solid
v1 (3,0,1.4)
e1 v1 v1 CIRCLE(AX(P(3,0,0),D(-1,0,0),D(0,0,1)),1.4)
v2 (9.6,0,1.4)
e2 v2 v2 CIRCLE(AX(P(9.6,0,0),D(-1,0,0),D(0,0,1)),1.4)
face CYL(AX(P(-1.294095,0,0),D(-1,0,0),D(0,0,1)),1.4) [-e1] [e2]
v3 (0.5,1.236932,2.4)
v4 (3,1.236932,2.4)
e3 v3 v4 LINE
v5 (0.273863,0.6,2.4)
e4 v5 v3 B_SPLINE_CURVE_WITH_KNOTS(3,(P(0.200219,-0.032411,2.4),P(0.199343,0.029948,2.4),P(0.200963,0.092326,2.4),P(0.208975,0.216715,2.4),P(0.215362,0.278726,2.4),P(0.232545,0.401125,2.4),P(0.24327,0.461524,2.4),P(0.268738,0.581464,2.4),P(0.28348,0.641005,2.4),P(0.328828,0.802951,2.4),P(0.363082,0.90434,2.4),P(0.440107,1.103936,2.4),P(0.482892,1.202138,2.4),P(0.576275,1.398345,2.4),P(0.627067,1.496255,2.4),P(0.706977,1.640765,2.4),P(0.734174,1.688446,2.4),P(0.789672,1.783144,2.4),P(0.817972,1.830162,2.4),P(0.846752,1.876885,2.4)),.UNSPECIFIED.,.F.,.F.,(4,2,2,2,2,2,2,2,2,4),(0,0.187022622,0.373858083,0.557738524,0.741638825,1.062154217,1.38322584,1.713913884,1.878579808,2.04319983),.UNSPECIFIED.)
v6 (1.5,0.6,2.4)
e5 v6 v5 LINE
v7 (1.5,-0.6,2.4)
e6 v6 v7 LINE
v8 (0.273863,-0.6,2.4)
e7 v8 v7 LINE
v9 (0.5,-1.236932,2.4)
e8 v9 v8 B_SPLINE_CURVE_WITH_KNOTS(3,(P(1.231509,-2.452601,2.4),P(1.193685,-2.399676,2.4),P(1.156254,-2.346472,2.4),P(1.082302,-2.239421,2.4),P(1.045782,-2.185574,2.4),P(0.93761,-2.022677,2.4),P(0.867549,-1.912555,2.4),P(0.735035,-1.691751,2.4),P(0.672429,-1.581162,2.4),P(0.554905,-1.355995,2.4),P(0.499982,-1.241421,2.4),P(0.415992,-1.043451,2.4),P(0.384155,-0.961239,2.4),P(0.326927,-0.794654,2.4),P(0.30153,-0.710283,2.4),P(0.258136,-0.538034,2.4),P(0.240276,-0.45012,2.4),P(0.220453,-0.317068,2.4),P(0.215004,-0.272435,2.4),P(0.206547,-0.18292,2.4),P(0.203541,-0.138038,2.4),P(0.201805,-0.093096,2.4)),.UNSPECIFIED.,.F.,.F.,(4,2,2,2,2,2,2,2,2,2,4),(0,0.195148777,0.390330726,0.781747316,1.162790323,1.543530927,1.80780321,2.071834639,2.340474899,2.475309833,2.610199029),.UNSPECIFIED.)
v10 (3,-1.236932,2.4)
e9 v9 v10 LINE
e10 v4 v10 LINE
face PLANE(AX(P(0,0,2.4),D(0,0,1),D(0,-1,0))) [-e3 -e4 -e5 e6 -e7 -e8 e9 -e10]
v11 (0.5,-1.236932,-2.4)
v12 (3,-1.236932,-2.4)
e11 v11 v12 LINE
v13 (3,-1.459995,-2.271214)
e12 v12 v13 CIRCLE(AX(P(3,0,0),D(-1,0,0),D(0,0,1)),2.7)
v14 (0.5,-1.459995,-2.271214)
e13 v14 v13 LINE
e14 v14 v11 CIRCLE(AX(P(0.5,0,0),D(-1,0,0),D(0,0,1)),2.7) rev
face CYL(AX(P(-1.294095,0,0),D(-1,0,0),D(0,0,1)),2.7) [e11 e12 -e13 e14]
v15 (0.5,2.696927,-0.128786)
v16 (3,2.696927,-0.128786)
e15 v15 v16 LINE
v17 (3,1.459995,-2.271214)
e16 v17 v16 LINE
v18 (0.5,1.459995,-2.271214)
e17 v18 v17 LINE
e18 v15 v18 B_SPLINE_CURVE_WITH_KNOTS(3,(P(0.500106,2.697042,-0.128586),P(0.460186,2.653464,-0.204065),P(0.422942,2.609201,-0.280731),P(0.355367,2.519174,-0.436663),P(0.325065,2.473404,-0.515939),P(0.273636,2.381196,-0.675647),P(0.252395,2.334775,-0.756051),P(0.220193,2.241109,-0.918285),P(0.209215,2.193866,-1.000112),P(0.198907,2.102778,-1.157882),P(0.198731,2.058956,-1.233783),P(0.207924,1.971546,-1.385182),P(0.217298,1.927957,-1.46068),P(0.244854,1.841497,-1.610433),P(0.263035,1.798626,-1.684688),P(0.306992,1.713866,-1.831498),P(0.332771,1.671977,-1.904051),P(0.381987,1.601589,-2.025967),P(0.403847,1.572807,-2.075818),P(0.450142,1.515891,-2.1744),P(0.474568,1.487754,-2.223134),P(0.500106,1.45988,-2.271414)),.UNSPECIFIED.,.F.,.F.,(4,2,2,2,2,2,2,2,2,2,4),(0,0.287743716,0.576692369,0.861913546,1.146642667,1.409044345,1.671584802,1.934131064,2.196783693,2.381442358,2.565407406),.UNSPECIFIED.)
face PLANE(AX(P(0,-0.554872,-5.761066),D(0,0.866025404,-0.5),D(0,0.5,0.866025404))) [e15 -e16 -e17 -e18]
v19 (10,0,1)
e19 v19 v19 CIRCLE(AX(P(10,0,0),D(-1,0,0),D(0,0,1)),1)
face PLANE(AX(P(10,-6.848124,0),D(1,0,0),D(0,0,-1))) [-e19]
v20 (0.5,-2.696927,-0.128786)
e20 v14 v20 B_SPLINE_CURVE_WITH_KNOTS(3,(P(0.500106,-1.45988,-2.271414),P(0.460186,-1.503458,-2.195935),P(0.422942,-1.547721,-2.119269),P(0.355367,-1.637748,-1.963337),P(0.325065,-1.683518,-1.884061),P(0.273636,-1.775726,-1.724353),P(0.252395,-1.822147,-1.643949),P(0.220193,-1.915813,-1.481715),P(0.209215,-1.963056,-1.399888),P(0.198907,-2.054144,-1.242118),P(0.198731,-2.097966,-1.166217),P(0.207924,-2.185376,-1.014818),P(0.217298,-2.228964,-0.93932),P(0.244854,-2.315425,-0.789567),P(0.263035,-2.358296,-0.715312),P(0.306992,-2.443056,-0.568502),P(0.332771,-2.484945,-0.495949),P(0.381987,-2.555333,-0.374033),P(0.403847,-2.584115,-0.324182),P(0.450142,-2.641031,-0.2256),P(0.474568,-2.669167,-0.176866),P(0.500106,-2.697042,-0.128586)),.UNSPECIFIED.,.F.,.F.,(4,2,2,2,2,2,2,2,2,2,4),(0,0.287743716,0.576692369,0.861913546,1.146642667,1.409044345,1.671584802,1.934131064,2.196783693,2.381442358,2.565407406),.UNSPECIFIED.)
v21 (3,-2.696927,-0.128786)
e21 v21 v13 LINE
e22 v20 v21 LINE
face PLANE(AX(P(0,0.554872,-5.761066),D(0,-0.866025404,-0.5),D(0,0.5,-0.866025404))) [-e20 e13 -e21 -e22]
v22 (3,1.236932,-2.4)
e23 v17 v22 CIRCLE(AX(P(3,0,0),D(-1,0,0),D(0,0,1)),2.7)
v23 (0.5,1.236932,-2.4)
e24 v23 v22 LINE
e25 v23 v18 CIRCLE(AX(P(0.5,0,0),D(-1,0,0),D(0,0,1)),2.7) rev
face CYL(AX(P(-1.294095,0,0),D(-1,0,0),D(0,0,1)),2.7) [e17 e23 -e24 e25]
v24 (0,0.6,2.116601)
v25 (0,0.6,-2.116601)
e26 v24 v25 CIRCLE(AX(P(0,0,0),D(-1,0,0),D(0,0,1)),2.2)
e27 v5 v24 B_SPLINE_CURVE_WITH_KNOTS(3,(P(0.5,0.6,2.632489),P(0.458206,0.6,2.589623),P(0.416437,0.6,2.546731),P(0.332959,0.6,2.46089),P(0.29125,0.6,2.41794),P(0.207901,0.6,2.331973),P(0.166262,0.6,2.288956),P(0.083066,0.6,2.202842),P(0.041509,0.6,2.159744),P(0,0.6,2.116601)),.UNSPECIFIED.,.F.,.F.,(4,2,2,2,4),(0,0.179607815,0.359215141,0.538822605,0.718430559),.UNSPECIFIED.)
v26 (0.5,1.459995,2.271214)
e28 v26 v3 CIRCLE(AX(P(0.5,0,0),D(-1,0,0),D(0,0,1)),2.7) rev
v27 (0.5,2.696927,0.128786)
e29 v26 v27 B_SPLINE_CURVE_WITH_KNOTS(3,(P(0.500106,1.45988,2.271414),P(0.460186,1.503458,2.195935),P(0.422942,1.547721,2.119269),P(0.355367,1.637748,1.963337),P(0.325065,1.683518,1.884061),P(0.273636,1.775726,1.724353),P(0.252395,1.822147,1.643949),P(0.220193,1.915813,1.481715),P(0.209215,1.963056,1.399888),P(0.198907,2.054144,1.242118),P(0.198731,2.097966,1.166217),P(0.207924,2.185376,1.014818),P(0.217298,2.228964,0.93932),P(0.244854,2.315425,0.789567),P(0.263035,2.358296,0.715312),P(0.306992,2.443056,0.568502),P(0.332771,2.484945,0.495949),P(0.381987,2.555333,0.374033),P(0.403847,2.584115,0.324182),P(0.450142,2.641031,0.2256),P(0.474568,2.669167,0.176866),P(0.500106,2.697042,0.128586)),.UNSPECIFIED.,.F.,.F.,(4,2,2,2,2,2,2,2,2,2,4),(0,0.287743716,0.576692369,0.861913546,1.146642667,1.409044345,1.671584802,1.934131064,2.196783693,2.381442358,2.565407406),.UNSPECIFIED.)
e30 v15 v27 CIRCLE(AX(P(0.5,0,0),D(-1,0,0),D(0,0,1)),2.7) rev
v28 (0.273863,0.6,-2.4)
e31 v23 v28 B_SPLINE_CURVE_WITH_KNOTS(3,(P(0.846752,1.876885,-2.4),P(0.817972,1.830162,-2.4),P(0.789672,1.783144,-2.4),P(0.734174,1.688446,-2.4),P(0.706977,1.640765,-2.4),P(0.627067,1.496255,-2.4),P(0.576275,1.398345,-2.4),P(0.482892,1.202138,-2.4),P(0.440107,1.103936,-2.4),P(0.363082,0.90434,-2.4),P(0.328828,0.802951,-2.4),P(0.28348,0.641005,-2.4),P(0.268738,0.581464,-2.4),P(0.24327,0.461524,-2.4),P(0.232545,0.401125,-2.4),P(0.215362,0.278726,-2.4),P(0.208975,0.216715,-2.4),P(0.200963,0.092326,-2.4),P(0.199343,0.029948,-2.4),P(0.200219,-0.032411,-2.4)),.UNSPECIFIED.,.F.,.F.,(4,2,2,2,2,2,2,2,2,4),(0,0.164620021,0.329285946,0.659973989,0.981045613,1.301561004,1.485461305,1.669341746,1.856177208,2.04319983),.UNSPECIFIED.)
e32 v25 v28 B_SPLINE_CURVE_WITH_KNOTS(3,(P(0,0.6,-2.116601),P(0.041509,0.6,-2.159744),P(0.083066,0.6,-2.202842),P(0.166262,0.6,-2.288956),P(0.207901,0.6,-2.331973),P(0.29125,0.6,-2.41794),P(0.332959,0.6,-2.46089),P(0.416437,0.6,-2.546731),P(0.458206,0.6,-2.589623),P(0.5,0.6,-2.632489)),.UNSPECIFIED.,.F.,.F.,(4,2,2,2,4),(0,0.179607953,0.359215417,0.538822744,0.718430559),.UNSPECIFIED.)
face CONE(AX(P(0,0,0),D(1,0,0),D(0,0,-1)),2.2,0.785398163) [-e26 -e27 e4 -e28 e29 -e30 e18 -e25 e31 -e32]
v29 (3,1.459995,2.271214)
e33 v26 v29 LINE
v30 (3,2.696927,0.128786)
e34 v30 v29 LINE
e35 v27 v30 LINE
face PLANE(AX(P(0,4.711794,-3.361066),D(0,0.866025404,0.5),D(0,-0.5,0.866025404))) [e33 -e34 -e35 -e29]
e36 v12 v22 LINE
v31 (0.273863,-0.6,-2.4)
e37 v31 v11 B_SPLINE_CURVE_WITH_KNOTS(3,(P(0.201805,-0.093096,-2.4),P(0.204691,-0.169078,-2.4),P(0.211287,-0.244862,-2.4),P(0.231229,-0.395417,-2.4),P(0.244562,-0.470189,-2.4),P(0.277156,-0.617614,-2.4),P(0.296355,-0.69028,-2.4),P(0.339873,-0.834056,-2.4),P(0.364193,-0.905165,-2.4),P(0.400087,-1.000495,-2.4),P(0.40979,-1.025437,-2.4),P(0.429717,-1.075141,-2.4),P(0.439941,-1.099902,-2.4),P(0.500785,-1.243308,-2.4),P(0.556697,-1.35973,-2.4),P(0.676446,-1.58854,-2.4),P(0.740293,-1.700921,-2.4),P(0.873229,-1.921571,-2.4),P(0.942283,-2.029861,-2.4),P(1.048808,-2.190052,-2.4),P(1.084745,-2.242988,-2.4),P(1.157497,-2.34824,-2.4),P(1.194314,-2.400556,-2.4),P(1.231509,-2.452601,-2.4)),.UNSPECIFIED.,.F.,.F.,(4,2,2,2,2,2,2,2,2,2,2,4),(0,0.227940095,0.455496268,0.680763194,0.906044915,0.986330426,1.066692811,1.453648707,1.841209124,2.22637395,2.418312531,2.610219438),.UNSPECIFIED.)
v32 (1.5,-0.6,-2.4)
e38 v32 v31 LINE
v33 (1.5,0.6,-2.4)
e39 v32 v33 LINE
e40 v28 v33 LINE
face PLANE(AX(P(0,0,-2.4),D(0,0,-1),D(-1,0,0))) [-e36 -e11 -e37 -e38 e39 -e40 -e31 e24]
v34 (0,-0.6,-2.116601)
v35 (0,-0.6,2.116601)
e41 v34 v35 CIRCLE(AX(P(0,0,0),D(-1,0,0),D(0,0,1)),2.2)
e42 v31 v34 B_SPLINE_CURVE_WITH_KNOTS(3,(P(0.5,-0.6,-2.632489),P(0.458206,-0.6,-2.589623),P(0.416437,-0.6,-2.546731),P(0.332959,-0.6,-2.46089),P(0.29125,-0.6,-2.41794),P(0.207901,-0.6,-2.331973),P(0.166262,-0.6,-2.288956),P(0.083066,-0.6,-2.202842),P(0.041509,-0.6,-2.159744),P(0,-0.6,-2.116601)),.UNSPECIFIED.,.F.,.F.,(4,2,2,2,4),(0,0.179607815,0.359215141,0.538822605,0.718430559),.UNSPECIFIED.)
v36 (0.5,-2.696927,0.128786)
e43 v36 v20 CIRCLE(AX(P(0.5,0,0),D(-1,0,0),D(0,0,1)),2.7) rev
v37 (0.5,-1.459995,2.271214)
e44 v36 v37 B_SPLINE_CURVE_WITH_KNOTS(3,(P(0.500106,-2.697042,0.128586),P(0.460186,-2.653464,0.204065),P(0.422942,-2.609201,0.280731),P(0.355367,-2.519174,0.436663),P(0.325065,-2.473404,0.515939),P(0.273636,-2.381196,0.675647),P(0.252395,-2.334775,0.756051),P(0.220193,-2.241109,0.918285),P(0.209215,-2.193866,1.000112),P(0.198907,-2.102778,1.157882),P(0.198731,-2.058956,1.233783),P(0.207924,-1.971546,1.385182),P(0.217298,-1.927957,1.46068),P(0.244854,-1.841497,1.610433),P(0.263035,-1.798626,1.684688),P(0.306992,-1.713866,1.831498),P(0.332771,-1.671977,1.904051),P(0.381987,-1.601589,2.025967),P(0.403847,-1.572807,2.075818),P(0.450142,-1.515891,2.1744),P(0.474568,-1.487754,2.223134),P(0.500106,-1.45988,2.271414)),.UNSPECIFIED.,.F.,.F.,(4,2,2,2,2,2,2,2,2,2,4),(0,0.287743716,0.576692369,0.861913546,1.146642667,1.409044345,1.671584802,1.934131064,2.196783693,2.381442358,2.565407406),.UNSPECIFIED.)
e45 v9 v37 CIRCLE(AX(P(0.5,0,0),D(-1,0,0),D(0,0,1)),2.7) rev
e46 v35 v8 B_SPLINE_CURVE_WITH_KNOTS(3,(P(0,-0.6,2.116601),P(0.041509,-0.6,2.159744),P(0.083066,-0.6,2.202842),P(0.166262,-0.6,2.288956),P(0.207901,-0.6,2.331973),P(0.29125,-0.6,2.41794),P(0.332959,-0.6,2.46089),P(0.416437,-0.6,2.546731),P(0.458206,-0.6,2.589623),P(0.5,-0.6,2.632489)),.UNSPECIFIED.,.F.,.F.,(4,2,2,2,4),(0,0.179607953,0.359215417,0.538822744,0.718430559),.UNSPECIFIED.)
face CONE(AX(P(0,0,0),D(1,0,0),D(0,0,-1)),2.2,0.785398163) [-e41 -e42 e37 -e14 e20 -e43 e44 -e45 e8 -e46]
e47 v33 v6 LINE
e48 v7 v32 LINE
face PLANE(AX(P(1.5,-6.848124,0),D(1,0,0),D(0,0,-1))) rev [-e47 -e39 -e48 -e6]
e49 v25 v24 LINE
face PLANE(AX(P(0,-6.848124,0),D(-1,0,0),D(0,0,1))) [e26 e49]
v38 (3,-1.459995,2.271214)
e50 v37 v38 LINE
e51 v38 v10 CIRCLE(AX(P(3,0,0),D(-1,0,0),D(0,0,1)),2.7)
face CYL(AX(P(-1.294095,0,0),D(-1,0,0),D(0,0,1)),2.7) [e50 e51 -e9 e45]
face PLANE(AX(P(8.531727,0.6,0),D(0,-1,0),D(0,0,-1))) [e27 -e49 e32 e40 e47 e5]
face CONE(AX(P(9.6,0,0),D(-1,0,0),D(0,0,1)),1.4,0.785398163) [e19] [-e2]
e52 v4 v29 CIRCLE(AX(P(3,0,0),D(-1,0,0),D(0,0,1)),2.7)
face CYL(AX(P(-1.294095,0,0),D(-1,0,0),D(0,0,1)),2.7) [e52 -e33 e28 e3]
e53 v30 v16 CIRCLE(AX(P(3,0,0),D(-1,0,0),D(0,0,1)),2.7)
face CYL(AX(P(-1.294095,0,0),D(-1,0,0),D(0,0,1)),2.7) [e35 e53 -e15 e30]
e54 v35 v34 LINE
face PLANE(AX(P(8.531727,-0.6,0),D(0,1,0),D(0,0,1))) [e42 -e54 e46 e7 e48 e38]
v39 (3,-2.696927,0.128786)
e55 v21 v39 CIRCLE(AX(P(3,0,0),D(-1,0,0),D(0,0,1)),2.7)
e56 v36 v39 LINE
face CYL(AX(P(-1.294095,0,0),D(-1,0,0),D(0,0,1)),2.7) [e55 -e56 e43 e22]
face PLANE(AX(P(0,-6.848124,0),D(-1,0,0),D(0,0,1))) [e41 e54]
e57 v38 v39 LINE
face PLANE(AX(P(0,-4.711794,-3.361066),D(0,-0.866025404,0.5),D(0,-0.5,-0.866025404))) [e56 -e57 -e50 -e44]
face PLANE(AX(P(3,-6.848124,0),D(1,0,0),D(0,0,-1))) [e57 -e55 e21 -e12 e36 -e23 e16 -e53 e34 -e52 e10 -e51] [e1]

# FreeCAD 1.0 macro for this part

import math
import FreeCAD as App
import Part
import Sketcher
from FreeCAD import Vector
Q = App.Units.Quantity


def edges_at(feature, points):
    """Names of the edges that pass closest to the given points."""
    edges = feature.Shape.Edges
    near = lambda p: min(range(len(edges)), key=lambda i: edges[i].distToShape(Part.Vertex(*p))[0])
    return sorted({f"Edge{near(p) + 1}" for p in points})


def add_polygon(sketch, points):
    """Adds a closed chain of lines whose ends are joined by coincident constraints."""
    first, n = sketch.GeometryCount, len(points)
    for a, b in zip(points, points[1:] + points[:1]):
        sketch.addGeometry(Part.LineSegment(App.Vector(*a, 0), App.Vector(*b, 0)), False)
    for i in range(n):
        sketch.addConstraint(Sketcher.Constraint("Coincident", first + i, 2, first + (i + 1) % n, 1))

doc = App.newDocument("Part")
body = doc.addObject("PartDesign::Body", "Body")

sketch1 = body.newObject("Sketcher::SketchObject", "Sketch")
sketch1.AttachmentSupport = (doc.getObject("XY_Plane"), [""])
sketch1.MapMode = "FlatFace"
add_polygon(sketch1, [(0, 2.7), (0, 0), (10, 0), (10, 1), (9.6, 1.4), (3, 1.4), (3, 2.7)])
sketch1.addConstraint([
    Sketcher.Constraint("Vertical", 0),
    Sketcher.Constraint("Horizontal", 1),
    Sketcher.Constraint("Vertical", 2),
    Sketcher.Constraint("Horizontal", 4),
    Sketcher.Constraint("Vertical", 5),
    Sketcher.Constraint("Horizontal", 6),
    Sketcher.Constraint("Coincident", 0, 2, -1, 1),
    Sketcher.Constraint("DistanceX", 1, 1, 1, 2, 10.0),
    Sketcher.Constraint("DistanceX", 6, 2, 6, 1, 3.0),
    Sketcher.Constraint("DistanceY", 2, 1, 2, 2, 1.0),
    Sketcher.Constraint("Angle", 3, Q("135 deg")),
    Sketcher.Constraint("DistanceX", 4, 2, 4, 1, 6.6),
    Sketcher.Constraint("DistanceY", 0, 2, 0, 1, 2.7),
])
revolution = body.newObject("PartDesign::Revolution", "Revolution")
revolution.Profile = sketch1
revolution.ReferenceAxis = (sketch1, ["H_Axis"])
revolution.Angle = 360

sketch2 = body.newObject("Sketcher::SketchObject", "Sketch001")
sketch2.AttachmentSupport = (doc.getObject("YZ_Plane"), [""])
sketch2.MapMode = "FlatFace"
sketch2.addGeometry([
    Part.LineSegment(Vector(0.6, 2.6, 0), Vector(0.6, -2.6, 0)),
    Part.ArcOfCircle(Part.Circle(Vector(0, 0, 0), Vector(0, 0, 1), 2.7), math.radians(-103), math.radians(-77)),
    Part.LineSegment(Vector(-0.6, -2.6, 0), Vector(-0.6, 2.6, 0)),
    Part.ArcOfCircle(Part.Circle(Vector(0, 0, 0), Vector(0, 0, 1), 2.7), math.radians(90), math.radians(102.84)),
    Part.ArcOfCircle(Part.Circle(Vector(0, 0, 0), Vector(0, 0, 1), 2.7), math.radians(77.16), math.radians(90)),
], False)
sketch2.addConstraint([
    Sketcher.Constraint("Coincident", 0, 2, 1, 2),
    Sketcher.Constraint("Coincident", 1, 1, 2, 1),
    Sketcher.Constraint("Coincident", 2, 2, 3, 2),
    Sketcher.Constraint("Tangent", 3, 1, 4, 2),
    Sketcher.Constraint("Coincident", 4, 1, 0, 1),
    Sketcher.Constraint("Vertical", 0),
    Sketcher.Constraint("Vertical", 2),
    Sketcher.Constraint("Coincident", 1, 3, -1, 1),
    Sketcher.Constraint("Coincident", 3, 3, -1, 1),
    Sketcher.Constraint("Equal", 1, 3),
    Sketcher.Constraint("Equal", 3, 4),
    Sketcher.Constraint("PointOnObject", 3, 1, -2),
    Sketcher.Constraint("Horizontal", 0, 2, 1, 1),
    Sketcher.Constraint("Radius", 1, 2.7),
    Sketcher.Constraint("DistanceX", -1, 1, 0, 2, 0.6),
])
pocket1 = body.newObject("PartDesign::Pocket", "Pocket")
pocket1.Profile = sketch2
pocket1.Length = 1.5
pocket1.Reversed = True
doc.recompute()

chamfer = body.newObject("PartDesign::Chamfer", "Chamfer")
chamfer.Base = (pocket1, edges_at(pocket1, [(0, -2.7, 0), (0, 2.111, 1.684)]))
chamfer.Size = 0.5

sketch3 = body.newObject("Sketcher::SketchObject", "Sketch002")
sketch3.AttachmentSupport = (doc.getObject("YZ_Plane"), [""])
sketch3.MapMode = "FlatFace"
sketch3.AttachmentOffset = App.Placement(Vector(0, 0, 3), App.Rotation())
sketch3.addGeometry([
    Part.ArcOfCircle(Part.Circle(Vector(0, 0, 0), Vector(0, 0, 1), 2.7), math.radians(-57), math.radians(-3)),
    Part.LineSegment(Vector(2.7, -0.1, 0), Vector(1.5, -2.3, 0)),
    Part.LineSegment(Vector(1.5, 2.3, 0), Vector(2.7, 0.1, 0)),
    Part.ArcOfCircle(Part.Circle(Vector(0, 0, 0), Vector(0, 0, 1), 2.7), math.radians(3), math.radians(57)),
    Part.LineSegment(Vector(-1.2, 2.4, 0), Vector(1.2, 2.4, 0)),
    Part.ArcOfCircle(Part.Circle(Vector(0, 0, 0), Vector(0, 0, 1), 2.7), math.radians(63), math.radians(117)),
    Part.LineSegment(Vector(-2.7, 0.1, 0), Vector(-1.5, 2.3, 0)),
    Part.ArcOfCircle(Part.Circle(Vector(0, 0, 0), Vector(0, 0, 1), 2.7), math.radians(123), math.radians(177)),
    Part.ArcOfCircle(Part.Circle(Vector(0, 0, 0), Vector(0, 0, 1), 2.7), math.radians(-177), math.radians(-123)),
    Part.LineSegment(Vector(-1.5, -2.3, 0), Vector(-2.7, -0.1, 0)),
    Part.ArcOfCircle(Part.Circle(Vector(0, 0, 0), Vector(0, 0, 1), 2.7), math.radians(-90), math.radians(-63)),
    Part.LineSegment(Vector(1.2, -2.4, 0), Vector(-1.2, -2.4, 0)),
    Part.ArcOfCircle(Part.Circle(Vector(0, 0, 0), Vector(0, 0, 1), 2.7), math.radians(-117), math.radians(-90)),
], False)
sketch3.addConstraint([
    Sketcher.Constraint("Coincident", 0, 1, 1, 2),
    Sketcher.Constraint("Coincident", 1, 1, 0, 2),
    Sketcher.Constraint("Coincident", 2, 1, 3, 2),
    Sketcher.Constraint("Coincident", 3, 1, 2, 2),
    Sketcher.Constraint("Coincident", 4, 1, 5, 2),
    Sketcher.Constraint("Coincident", 5, 1, 4, 2),
    Sketcher.Constraint("Coincident", 6, 1, 7, 2),
    Sketcher.Constraint("Coincident", 7, 1, 6, 2),
    Sketcher.Constraint("Coincident", 8, 1, 9, 2),
    Sketcher.Constraint("Coincident", 9, 1, 8, 2),
    Sketcher.Constraint("Coincident", 10, 2, 11, 1),
    Sketcher.Constraint("Coincident", 11, 2, 12, 1),
    Sketcher.Constraint("Tangent", 12, 2, 10, 1),
    Sketcher.Constraint("Horizontal", 4),
    Sketcher.Constraint("Horizontal", 11),
    Sketcher.Constraint("Coincident", 0, 3, -1, 1),
    Sketcher.Constraint("Coincident", 3, 3, -1, 1),
    Sketcher.Constraint("Coincident", 5, 3, -1, 1),
    Sketcher.Constraint("Coincident", 7, 3, -1, 1),
    Sketcher.Constraint("Coincident", 8, 3, -1, 1),
    Sketcher.Constraint("Coincident", 10, 3, -1, 1),
    Sketcher.Constraint("Equal", 0, 3),
    Sketcher.Constraint("Equal", 3, 5),
    Sketcher.Constraint("Equal", 5, 7),
    Sketcher.Constraint("Equal", 7, 8),
    Sketcher.Constraint("Equal", 8, 10),
    Sketcher.Constraint("Equal", 10, 12),
    Sketcher.Constraint("PointOnObject", 12, 2, -2),
    Sketcher.Constraint("Parallel", 1, 6),
    Sketcher.Constraint("Parallel", 2, 9),
    Sketcher.Constraint("Horizontal", 3, 1, 6, 1),
    Sketcher.Constraint("Horizontal", 2, 1, 7, 1),
    Sketcher.Constraint("Horizontal", 1, 1, 8, 1),
    Sketcher.Constraint("Vertical", 0, 1, 2, 1),
    Sketcher.Constraint("Vertical", 5, 1, 10, 2),
    Sketcher.Constraint("Radius", 0, 2.7),
    Sketcher.Constraint("Angle", 1, Q("-120 deg")),
    Sketcher.Constraint("DistanceY", -1, 1, 4, 1, 2.4),
    Sketcher.Constraint("DistanceY", 1, 1, 2, 1, 2.4),
])
pocket2 = body.newObject("PartDesign::Pocket", "Pocket001")
pocket2.Profile = sketch3
pocket2.Type = "ThroughAll"

doc.recompute()
